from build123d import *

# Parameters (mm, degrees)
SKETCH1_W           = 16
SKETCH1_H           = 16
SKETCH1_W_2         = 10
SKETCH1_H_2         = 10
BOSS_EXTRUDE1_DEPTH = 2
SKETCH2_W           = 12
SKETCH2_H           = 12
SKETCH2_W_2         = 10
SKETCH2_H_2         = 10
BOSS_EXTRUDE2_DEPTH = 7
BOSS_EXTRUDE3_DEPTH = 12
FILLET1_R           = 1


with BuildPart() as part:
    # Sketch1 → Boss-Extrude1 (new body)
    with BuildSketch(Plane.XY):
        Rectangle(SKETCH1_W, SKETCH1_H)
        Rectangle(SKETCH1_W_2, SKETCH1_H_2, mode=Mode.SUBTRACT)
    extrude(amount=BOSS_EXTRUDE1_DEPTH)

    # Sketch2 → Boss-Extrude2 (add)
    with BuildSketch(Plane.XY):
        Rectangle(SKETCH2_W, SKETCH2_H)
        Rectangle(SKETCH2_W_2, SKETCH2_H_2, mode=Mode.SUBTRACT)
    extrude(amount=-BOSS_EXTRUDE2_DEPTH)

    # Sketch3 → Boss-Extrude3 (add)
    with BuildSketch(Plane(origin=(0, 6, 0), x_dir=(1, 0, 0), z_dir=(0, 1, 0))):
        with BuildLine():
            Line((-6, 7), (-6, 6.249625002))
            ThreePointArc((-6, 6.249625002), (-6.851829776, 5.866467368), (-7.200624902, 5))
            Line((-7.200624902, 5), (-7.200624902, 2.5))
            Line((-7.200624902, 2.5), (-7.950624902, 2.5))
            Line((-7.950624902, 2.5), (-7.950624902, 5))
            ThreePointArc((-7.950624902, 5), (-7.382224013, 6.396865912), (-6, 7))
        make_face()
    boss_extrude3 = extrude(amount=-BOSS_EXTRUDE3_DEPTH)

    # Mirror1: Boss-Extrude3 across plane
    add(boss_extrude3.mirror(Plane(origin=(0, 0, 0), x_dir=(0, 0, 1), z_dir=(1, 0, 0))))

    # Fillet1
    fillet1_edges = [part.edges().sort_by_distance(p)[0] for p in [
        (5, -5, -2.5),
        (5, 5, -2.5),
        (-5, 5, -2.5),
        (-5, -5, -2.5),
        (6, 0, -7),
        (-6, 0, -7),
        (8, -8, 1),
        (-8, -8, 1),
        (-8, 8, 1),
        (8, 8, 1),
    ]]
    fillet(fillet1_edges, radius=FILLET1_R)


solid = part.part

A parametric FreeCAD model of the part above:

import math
import FreeCAD as App
import Part
import Sketcher
from FreeCAD import Vector


def edges_at(feature, points):
    """Names of the edges that pass closest to the given points."""
    edges = feature.Shape.Edges
    near = lambda p: min(range(len(edges)), key=lambda i: edges[i].distToShape(Part.Vertex(*p))[0])
    return sorted({f"Edge{near(p) + 1}" for p in points})

doc = App.newDocument("Part")
body = doc.addObject("PartDesign::Body", "Body")

# Sketch on XY plane
sketch1 = body.newObject("Sketcher::SketchObject", "Sketch")
sketch1.AttachmentSupport = (doc.getObject("XY_Plane"), [""])
sketch1.MapMode = "FlatFace"
sketch1.addGeometry(Part.LineSegment(Vector(-8, 8, 0), Vector(-8, -8, 0)), False)
sketch1.addGeometry(Part.LineSegment(Vector(-8, -8, 0), Vector(8, -8, 0)), False)
sketch1.addGeometry(Part.LineSegment(Vector(8, -8, 0), Vector(8, 8, 0)), False)
sketch1.addGeometry(Part.LineSegment(Vector(8, 8, 0), Vector(-8, 8, 0)), False)
sketch1.addGeometry(Part.LineSegment(Vector(5, -5, 0), Vector(-5, -5, 0)), False)
sketch1.addGeometry(Part.LineSegment(Vector(-5, -5, 0), Vector(-5, 5, 0)), False)
sketch1.addGeometry(Part.LineSegment(Vector(-5, 5, 0), Vector(5, 5, 0)), False)
sketch1.addGeometry(Part.LineSegment(Vector(5, 5, 0), Vector(5, -5, 0)), False)
sketch1.addConstraint(Sketcher.Constraint("Coincident", 0, 2, 1, 1))
sketch1.addConstraint(Sketcher.Constraint("Coincident", 1, 2, 2, 1))
sketch1.addConstraint(Sketcher.Constraint("Coincident", 2, 2, 3, 1))
sketch1.addConstraint(Sketcher.Constraint("Coincident", 3, 2, 0, 1))
sketch1.addConstraint(Sketcher.Constraint("Coincident", 4, 2, 5, 1))
sketch1.addConstraint(Sketcher.Constraint("Coincident", 5, 2, 6, 1))
sketch1.addConstraint(Sketcher.Constraint("Coincident", 6, 2, 7, 1))
sketch1.addConstraint(Sketcher.Constraint("Coincident", 7, 2, 4, 1))
sketch1.addConstraint(Sketcher.Constraint("Vertical", 0))
sketch1.addConstraint(Sketcher.Constraint("Horizontal", 1))
sketch1.addConstraint(Sketcher.Constraint("Vertical", 2))
sketch1.addConstraint(Sketcher.Constraint("Horizontal", 3))
sketch1.addConstraint(Sketcher.Constraint("Horizontal", 4))
sketch1.addConstraint(Sketcher.Constraint("Vertical", 5))
sketch1.addConstraint(Sketcher.Constraint("Horizontal", 6))
sketch1.addConstraint(Sketcher.Constraint("Vertical", 7))
sketch1.addConstraint(Sketcher.Constraint("Symmetric", 0, 2, 2, 2, -1, 1))
sketch1.addConstraint(Sketcher.Constraint("Symmetric", 4, 2, 6, 2, -1, 1))
sketch1.addConstraint(Sketcher.Constraint("Equal", 3, 0))
sketch1.addConstraint(Sketcher.Constraint("Equal", 6, 5))
sketch1.addConstraint(Sketcher.Constraint("DistanceX", 1, 1, 1, 2, 16.0))
sketch1.addConstraint(Sketcher.Constraint("DistanceX", 4, 2, 4, 1, 10.0))
pad1 = body.newObject("PartDesign::Pad", "Pad")
pad1.Profile = sketch1
pad1.Length = 2

# Sketch on XY plane
sketch2 = body.newObject("Sketcher::SketchObject", "Sketch001")
sketch2.AttachmentSupport = (doc.getObject("XY_Plane"), [""])
sketch2.MapMode = "FlatFace"
sketch2.addGeometry(Part.LineSegment(Vector(-6, 6, 0), Vector(-6, -6, 0)), False)
sketch2.addGeometry(Part.LineSegment(Vector(-6, -6, 0), Vector(6, -6, 0)), False)
sketch2.addGeometry(Part.LineSegment(Vector(6, -6, 0), Vector(6, 6, 0)), False)
sketch2.addGeometry(Part.LineSegment(Vector(6, 6, 0), Vector(-6, 6, 0)), False)
sketch2.addGeometry(Part.LineSegment(Vector(5, -5, 0), Vector(-5, -5, 0)), False)
sketch2.addGeometry(Part.LineSegment(Vector(-5, -5, 0), Vector(-5, 5, 0)), False)
sketch2.addGeometry(Part.LineSegment(Vector(-5, 5, 0), Vector(5, 5, 0)), False)
sketch2.addGeometry(Part.LineSegment(Vector(5, 5, 0), Vector(5, -5, 0)), False)
sketch2.addConstraint(Sketcher.Constraint("Coincident", 0, 2, 1, 1))
sketch2.addConstraint(Sketcher.Constraint("Coincident", 1, 2, 2, 1))
sketch2.addConstraint(Sketcher.Constraint("Coincident", 2, 2, 3, 1))
sketch2.addConstraint(Sketcher.Constraint("Coincident", 3, 2, 0, 1))
sketch2.addConstraint(Sketcher.Constraint("Coincident", 4, 2, 5, 1))
sketch2.addConstraint(Sketcher.Constraint("Coincident", 5, 2, 6, 1))
sketch2.addConstraint(Sketcher.Constraint("Coincident", 6, 2, 7, 1))
sketch2.addConstraint(Sketcher.Constraint("Coincident", 7, 2, 4, 1))
sketch2.addConstraint(Sketcher.Constraint("Vertical", 0))
sketch2.addConstraint(Sketcher.Constraint("Horizontal", 1))
sketch2.addConstraint(Sketcher.Constraint("Vertical", 2))
sketch2.addConstraint(Sketcher.Constraint("Horizontal", 3))
sketch2.addConstraint(Sketcher.Constraint("Horizontal", 4))
sketch2.addConstraint(Sketcher.Constraint("Vertical", 5))
sketch2.addConstraint(Sketcher.Constraint("Horizontal", 6))
sketch2.addConstraint(Sketcher.Constraint("Vertical", 7))
sketch2.addConstraint(Sketcher.Constraint("Symmetric", 0, 2, 2, 2, -1, 1))
sketch2.addConstraint(Sketcher.Constraint("Symmetric", 4, 2, 6, 2, -1, 1))
sketch2.addConstraint(Sketcher.Constraint("Equal", 3, 0))
sketch2.addConstraint(Sketcher.Constraint("Equal", 6, 5))
sketch2.addConstraint(Sketcher.Constraint("DistanceX", 1, 1, 1, 2, 12.0))
sketch2.addConstraint(Sketcher.Constraint("DistanceX", 4, 2, 4, 1, 10.0))
pad2 = body.newObject("PartDesign::Pad", "Pad001")
pad2.Profile = sketch2
pad2.Length = 7
pad2.Reversed = True

# Sketch on XZ plane
sketch3 = body.newObject("Sketcher::SketchObject", "Sketch002")
sketch3.AttachmentSupport = (doc.getObject("XZ_Plane"), [""])
sketch3.MapMode = "FlatFace"
sketch3.AttachmentOffset = App.Placement(Vector(0, 0, -6), App.Rotation())
sketch3.addGeometry(Part.LineSegment(Vector(-6, -6.2, 0), Vector(-6, -7, 0)), False)
sketch3.addGeometry(Part.ArcOfCircle(Part.Circle(Vector(-6, -5, 0), Vector(0, 0, 1), 2), math.radians(180), math.radians(269)), False)
sketch3.addGeometry(Part.LineSegment(Vector(-8, -5, 0), Vector(-8, -2.5, 0)), False)
sketch3.addGeometry(Part.LineSegment(Vector(-8, -2.5, 0), Vector(-7.2, -2.5, 0)), False)
sketch3.addGeometry(Part.LineSegment(Vector(-7.2, -2.5, 0), Vector(-7.2, -5, 0)), False)
sketch3.addGeometry(Part.ArcOfCircle(Part.Circle(Vector(-5.9, -5, 0), Vector(0, 0, 1), 1.3), math.radians(-180), math.radians(-92)), False)
sketch3.addConstraint(Sketcher.Constraint("Coincident", 0, 2, 1, 2))
sketch3.addConstraint(Sketcher.Constraint("Tangent", 1, 1, 2, 1))
sketch3.addConstraint(Sketcher.Constraint("Coincident", 2, 2, 3, 1))
sketch3.addConstraint(Sketcher.Constraint("Coincident", 3, 2, 4, 1))
sketch3.addConstraint(Sketcher.Constraint("Tangent", 4, 2, 5, 1))
sketch3.addConstraint(Sketcher.Constraint("Coincident", 5, 2, 0, 1))
sketch3.addConstraint(Sketcher.Constraint("Vertical", 0))
sketch3.addConstraint(Sketcher.Constraint("Vertical", 2))
sketch3.addConstraint(Sketcher.Constraint("Horizontal", 3))
sketch3.addConstraint(Sketcher.Constraint("Vertical", 4))
sketch3.addConstraint(Sketcher.Constraint("Coincident", 5, 3, 1, 3))
sketch3.addConstraint(Sketcher.Constraint("DistanceY", 2, 1, 2, 2, 2.5))
sketch3.addConstraint(Sketcher.Constraint("DistanceY", 1, 3, -1, 1, 5.0))
sketch3.addConstraint(Sketcher.Constraint("DistanceX", 0, 2, -1, 1, 6.0))
sketch3.addConstraint(Sketcher.Constraint("DistanceY", 0, 2, -1, 1, 7.0))
sketch3.addConstraint(Sketcher.Constraint("DistanceX", 3, 1, 3, 2, 0.75))
sketch3.addConstraint(Sketcher.Constraint("DistanceX", 1, 3, -1, 1, 5.95))
pad3 = body.newObject("PartDesign::Pad", "Pad002")
pad3.Profile = sketch3
pad3.Length = 12
doc.recompute()

mirrored = body.newObject("PartDesign::Mirrored", "Mirrored")
mirrored.Originals = [pad3]
mirrored.MirrorPlane = (doc.getObject("YZ_Plane"), [""])
body.Tip = mirrored
doc.recompute()

fillet = body.newObject("PartDesign::Fillet", "Fillet")
fillet.Base = (mirrored, edges_at(mirrored, [
    (5, -5, -2.5),
    (5, 5, -2.5),
    (-5, 5, -2.5),
    (-5, -5, -2.5),
    (6, 0, -7),
    (-6, 0, -7),
    (8, -8, 1),
    (-8, -8, 1),
    (-8, 8, 1),
    (8, 8, 1),
]))
fillet.Radius = 1

doc.recompute()
